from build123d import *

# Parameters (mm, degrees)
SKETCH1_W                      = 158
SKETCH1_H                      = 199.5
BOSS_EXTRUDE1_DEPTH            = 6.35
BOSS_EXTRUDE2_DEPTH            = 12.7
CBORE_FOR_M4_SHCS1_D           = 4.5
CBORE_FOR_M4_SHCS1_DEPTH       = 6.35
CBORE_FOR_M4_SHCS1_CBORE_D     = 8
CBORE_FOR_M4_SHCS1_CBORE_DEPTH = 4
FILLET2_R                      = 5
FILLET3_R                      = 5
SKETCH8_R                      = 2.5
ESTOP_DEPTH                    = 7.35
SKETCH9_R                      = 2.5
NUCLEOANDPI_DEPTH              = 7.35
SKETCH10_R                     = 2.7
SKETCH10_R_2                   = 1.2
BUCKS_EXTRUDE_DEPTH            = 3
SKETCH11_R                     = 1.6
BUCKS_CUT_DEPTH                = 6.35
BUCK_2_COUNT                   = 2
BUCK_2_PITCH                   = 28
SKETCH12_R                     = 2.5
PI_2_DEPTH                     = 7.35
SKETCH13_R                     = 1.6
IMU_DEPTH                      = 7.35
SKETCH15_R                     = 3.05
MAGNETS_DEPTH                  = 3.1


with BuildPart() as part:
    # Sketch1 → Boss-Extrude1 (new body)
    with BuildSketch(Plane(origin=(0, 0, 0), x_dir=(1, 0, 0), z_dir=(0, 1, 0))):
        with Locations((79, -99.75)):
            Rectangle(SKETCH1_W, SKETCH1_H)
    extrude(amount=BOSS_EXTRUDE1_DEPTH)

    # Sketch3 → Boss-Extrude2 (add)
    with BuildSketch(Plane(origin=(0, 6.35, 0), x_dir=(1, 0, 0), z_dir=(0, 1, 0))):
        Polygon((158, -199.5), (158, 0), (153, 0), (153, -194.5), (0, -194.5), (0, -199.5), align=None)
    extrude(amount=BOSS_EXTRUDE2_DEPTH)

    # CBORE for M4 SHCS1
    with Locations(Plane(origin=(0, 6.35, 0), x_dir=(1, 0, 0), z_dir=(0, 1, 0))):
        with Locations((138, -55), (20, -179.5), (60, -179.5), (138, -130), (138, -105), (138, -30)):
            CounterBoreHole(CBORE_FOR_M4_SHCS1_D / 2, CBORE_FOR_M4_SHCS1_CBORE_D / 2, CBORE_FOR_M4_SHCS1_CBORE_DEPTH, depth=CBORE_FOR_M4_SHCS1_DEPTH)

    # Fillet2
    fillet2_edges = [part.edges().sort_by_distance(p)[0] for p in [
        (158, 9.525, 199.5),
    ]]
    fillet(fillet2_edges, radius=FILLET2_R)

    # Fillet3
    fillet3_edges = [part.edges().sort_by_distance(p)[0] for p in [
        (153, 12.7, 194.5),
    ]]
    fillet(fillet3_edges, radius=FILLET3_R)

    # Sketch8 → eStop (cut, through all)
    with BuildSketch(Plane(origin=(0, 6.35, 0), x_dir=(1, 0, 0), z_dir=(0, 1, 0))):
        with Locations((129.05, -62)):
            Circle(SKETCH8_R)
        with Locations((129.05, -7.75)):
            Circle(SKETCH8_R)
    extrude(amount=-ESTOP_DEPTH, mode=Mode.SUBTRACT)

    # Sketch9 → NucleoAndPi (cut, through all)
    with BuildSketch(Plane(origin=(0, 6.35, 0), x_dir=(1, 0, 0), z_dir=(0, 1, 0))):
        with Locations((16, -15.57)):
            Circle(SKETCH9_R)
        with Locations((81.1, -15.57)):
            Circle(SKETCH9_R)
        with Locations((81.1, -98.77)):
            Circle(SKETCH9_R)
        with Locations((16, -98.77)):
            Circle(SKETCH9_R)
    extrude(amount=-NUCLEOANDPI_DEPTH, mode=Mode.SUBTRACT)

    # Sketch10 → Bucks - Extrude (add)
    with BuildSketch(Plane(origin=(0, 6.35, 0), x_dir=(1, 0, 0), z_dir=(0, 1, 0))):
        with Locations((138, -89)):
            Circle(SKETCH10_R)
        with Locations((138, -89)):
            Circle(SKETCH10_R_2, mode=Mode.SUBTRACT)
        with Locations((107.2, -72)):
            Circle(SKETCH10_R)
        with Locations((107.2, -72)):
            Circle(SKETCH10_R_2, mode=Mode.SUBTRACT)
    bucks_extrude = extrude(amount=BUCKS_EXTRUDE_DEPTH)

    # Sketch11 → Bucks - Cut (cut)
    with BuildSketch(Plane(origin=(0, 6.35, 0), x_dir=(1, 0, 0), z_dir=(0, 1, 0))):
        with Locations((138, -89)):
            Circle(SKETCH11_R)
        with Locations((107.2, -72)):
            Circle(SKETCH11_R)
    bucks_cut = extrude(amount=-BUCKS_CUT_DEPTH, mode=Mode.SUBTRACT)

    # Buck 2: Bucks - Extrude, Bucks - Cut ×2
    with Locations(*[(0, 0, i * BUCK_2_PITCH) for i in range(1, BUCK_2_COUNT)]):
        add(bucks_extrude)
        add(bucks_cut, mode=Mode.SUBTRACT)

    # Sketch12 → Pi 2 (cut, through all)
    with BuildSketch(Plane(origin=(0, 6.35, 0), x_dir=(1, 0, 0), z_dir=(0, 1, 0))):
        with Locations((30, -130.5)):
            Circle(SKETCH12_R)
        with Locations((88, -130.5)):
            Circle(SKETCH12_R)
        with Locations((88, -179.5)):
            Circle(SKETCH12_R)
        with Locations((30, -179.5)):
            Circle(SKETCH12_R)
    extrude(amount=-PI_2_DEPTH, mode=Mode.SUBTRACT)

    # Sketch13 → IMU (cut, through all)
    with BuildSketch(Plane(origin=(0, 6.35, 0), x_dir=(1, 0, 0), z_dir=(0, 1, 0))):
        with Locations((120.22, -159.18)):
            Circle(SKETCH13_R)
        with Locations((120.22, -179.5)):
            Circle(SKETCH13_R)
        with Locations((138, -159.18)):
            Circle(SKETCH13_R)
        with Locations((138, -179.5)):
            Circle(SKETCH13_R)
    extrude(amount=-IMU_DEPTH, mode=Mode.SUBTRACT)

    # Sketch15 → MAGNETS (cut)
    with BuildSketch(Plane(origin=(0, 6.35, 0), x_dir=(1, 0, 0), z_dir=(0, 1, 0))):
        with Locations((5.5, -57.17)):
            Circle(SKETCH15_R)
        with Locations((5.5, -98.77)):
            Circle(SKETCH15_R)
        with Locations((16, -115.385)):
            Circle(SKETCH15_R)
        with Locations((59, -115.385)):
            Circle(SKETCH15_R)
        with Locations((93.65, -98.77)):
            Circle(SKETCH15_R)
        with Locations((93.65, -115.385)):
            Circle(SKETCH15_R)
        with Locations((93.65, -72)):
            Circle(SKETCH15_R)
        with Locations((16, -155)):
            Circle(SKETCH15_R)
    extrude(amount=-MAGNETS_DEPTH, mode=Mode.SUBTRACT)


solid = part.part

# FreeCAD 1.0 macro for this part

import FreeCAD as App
import Part
import Sketcher

V = App.Vector


def edges_at(feature, points):
    """Names of the edges that pass closest to the given points."""
    edges = feature.Shape.Edges
    near = lambda p: min(range(len(edges)), key=lambda i: edges[i].distToShape(Part.Vertex(*p))[0])
    return sorted({f"Edge{near(p) + 1}" for p in points})


def add_polygon(sketch, points):
    """Adds a closed chain of lines whose ends are joined by coincident constraints."""
    first, n = sketch.GeometryCount, len(points)
    for a, b in zip(points, points[1:] + points[:1]):
        sketch.addGeometry(Part.LineSegment(App.Vector(*a, 0), App.Vector(*b, 0)), False)
    for i in range(n):
        sketch.addConstraint(Sketcher.Constraint("Coincident", first + i, 2, first + (i + 1) % n, 1))

doc = App.newDocument("Part")
body = doc.addObject("PartDesign::Body", "Body")

# Sketch on XZ plane
sketch1 = doc.addObject("Sketcher::SketchObject", "Sketch")
body.addObject(sketch1)
sketch1.AttachmentSupport = (doc.XZ_Plane, [""])
sketch1.MapMode = "FlatFace"
add_polygon(sketch1, [(0, 0), (0, 199.5), (158, 199.5), (158, 0)])  # lines 0-3
sketch1.addConstraint([
    Sketcher.Constraint("Vertical", 0),
    Sketcher.Constraint("Horizontal", 1),
    Sketcher.Constraint("Vertical", 2),
    Sketcher.Constraint("Horizontal", 3),
    Sketcher.Constraint("Coincident", 3, 2, -1, 1),
    Sketcher.Constraint("DistanceX", 1, 1, 1, 2, 158.0),
    Sketcher.Constraint("DistanceY", 0, 1, 0, 2, 199.5),
])
pad1 = doc.addObject("PartDesign::Pad", "Pad")
body.addObject(pad1)
pad1.Profile = sketch1
pad1.Length = 6.35
pad1.Reversed = True

# Sketch on XZ plane
sketch2 = doc.addObject("Sketcher::SketchObject", "Sketch001")
body.addObject(sketch2)
sketch2.AttachmentSupport = (doc.XZ_Plane, [""])
sketch2.MapMode = "FlatFace"
sketch2.AttachmentOffset = App.Placement(V(0, 0, -6.35), App.Rotation())
add_polygon(sketch2, [(158, 199.5), (158, 0), (153, 0), (153, 194.5), (0, 194.5), (0, 199.5)])  # lines 0-5
sketch2.addConstraint([
    Sketcher.Constraint("Vertical", 0),
    Sketcher.Constraint("Horizontal", 1),
    Sketcher.Constraint("Vertical", 2),
    Sketcher.Constraint("Horizontal", 3),
    Sketcher.Constraint("Vertical", 4),
    Sketcher.Constraint("Horizontal", 5),
    Sketcher.Constraint("PointOnObject", 0, 2, -1),
    Sketcher.Constraint("PointOnObject", 3, 2, -2),
    Sketcher.Constraint("Equal", 1, 4),
    Sketcher.Constraint("DistanceX", 1, 2, 1, 1, 5.0),
    Sketcher.Constraint("DistanceX", 3, 2, 3, 1, 153.0),
    Sketcher.Constraint("DistanceY", 0, 2, 0, 1, 199.5),
])
pad2 = doc.addObject("PartDesign::Pad", "Pad001")
body.addObject(pad2)
pad2.Profile = sketch2
pad2.Length = 12.7
pad2.Reversed = True

# Sketch on XZ plane
sketch3 = doc.addObject("Sketcher::SketchObject", "Sketch002")
body.addObject(sketch3)
sketch3.AttachmentSupport = (doc.XZ_Plane, [""])
sketch3.MapMode = "FlatFace"
sketch3.AttachmentOffset = App.Placement(V(0, 0, -6.35), App.Rotation())
sketch3.addGeometry([
    Part.Circle(V(138, 55, 0), V(0, 0, 1), 2.25),  # 0
    Part.Circle(V(20, 179.5, 0), V(0, 0, 1), 2.25),  # 1
    Part.Circle(V(60, 179.5, 0), V(0, 0, 1), 2.25),  # 2
    Part.Circle(V(138, 130, 0), V(0, 0, 1), 2.25),  # 3
    Part.Circle(V(138, 105, 0), V(0, 0, 1), 2.25),  # 4
    Part.Circle(V(138, 30, 0), V(0, 0, 1), 2.25),  # 5
], False)
sketch3.addConstraint([
    Sketcher.Constraint("Equal", 0, 1),
    Sketcher.Constraint("Equal", 1, 2),
    Sketcher.Constraint("Equal", 2, 3),
    Sketcher.Constraint("Equal", 3, 4),
    Sketcher.Constraint("Equal", 4, 5),
    Sketcher.Constraint("Horizontal", 1, 3, 2, 3),
    Sketcher.Constraint("Vertical", 0, 3, 3, 3),
    Sketcher.Constraint("Vertical", 3, 3, 4, 3),
    Sketcher.Constraint("Vertical", 4, 3, 5, 3),
    Sketcher.Constraint("Diameter", 0, 4.5),
    Sketcher.Constraint("DistanceX", -1, 1, 0, 3, 138.0),
    Sketcher.Constraint("DistanceY", -1, 1, 0, 3, 55.0),
    Sketcher.Constraint("DistanceX", -1, 1, 1, 3, 20.0),
    Sketcher.Constraint("DistanceX", -1, 1, 2, 3, 60.0),
    Sketcher.Constraint("DistanceY", -1, 1, 3, 3, 130.0),
    Sketcher.Constraint("DistanceY", -1, 1, 4, 3, 105.0),
    Sketcher.Constraint("DistanceY", -1, 1, 5, 3, 30.0),
    Sketcher.Constraint("DistanceY", -1, 1, 1, 3, 179.5),
])
doc.recompute()
hole = doc.addObject("PartDesign::Hole", "Hole")
body.addObject(hole)
hole.Profile = sketch3
hole.ThreadType = "None"
hole.Diameter = 4.5
hole.DepthType = "Dimension"
hole.Depth = 6.35
hole.DrillPoint = "Flat"
hole.HoleCutType = "Counterbore"
hole.HoleCutDiameter = 8
hole.HoleCutDepth = 4
hole.Reversed = True
doc.recompute()

fillet = doc.addObject("PartDesign::Fillet", "Fillet")
body.addObject(fillet)
fillet.Base = (hole, edges_at(hole, [(158, 9.525, 199.5)]))
fillet.Radius = 5
doc.recompute()

fillet2 = doc.addObject("PartDesign::Fillet", "Fillet001")
body.addObject(fillet2)
fillet2.Base = (fillet, edges_at(fillet, [(153, 12.7, 194.5)]))
fillet2.Radius = 5

# Sketch on XZ plane
sketch4 = doc.addObject("Sketcher::SketchObject", "Sketch003")
body.addObject(sketch4)
sketch4.AttachmentSupport = (doc.XZ_Plane, [""])
sketch4.MapMode = "FlatFace"
sketch4.AttachmentOffset = App.Placement(V(0, 0, -6.35), App.Rotation())
sketch4.addGeometry([
    Part.Circle(V(129.05, 62, 0), V(0, 0, 1), 2.5),
    Part.Circle(V(129.05, 7.75, 0), V(0, 0, 1), 2.5),
], False)
sketch4.addConstraint([
    Sketcher.Constraint("Equal", 0, 1),
    Sketcher.Constraint("Vertical", 0, 3, 1, 3),
    Sketcher.Constraint("Diameter", 0, 5.0),
    Sketcher.Constraint("DistanceY", -1, 1, 0, 3, 62.0),
    Sketcher.Constraint("DistanceX", -1, 1, 0, 3, 129.05),
    Sketcher.Constraint("DistanceY", -1, 1, 1, 3, 7.75),
])
pocket1 = doc.addObject("PartDesign::Pocket", "Pocket")
body.addObject(pocket1)
pocket1.Profile = sketch4
pocket1.Type = "ThroughAll"
pocket1.Reversed = True

# Sketch on XZ plane
sketch5 = doc.addObject("Sketcher::SketchObject", "Sketch004")
body.addObject(sketch5)
sketch5.AttachmentSupport = (doc.XZ_Plane, [""])
sketch5.MapMode = "FlatFace"
sketch5.AttachmentOffset = App.Placement(V(0, 0, -6.35), App.Rotation())
sketch5.addGeometry([
    Part.Circle(V(16, 15.57, 0), V(0, 0, 1), 2.5),
    Part.Circle(V(81.1, 15.57, 0), V(0, 0, 1), 2.5),
    Part.Circle(V(81.1, 98.77, 0), V(0, 0, 1), 2.5),
    Part.Circle(V(16, 98.77, 0), V(0, 0, 1), 2.5),
], False)
sketch5.addConstraint([
    Sketcher.Constraint("Equal", 0, 1),
    Sketcher.Constraint("Equal", 1, 2),
    Sketcher.Constraint("Equal", 2, 3),
    Sketcher.Constraint("Horizontal", 0, 3, 1, 3),
    Sketcher.Constraint("Horizontal", 2, 3, 3, 3),
    Sketcher.Constraint("Vertical", 1, 3, 2, 3),
    Sketcher.Constraint("Vertical", 0, 3, 3, 3),
    Sketcher.Constraint("Diameter", 0, 5.0),
    Sketcher.Constraint("DistanceX", -1, 1, 0, 3, 16.0),
    Sketcher.Constraint("DistanceX", -1, 1, 1, 3, 81.1),
    Sketcher.Constraint("DistanceY", 1, 3, 2, 3, 83.2),
    Sketcher.Constraint("DistanceY", -1, 1, 0, 3, 15.57),
])
pocket2 = doc.addObject("PartDesign::Pocket", "Pocket001")
body.addObject(pocket2)
pocket2.Profile = sketch5
pocket2.Type = "ThroughAll"
pocket2.Reversed = True

# Sketch on XZ plane
sketch6 = doc.addObject("Sketcher::SketchObject", "Sketch005")
body.addObject(sketch6)
sketch6.AttachmentSupport = (doc.XZ_Plane, [""])
sketch6.MapMode = "FlatFace"
sketch6.AttachmentOffset = App.Placement(V(0, 0, -6.35), App.Rotation())
sketch6.addGeometry([
    Part.Circle(V(138, 89, 0), V(0, 0, 1), 2.7),
    Part.Circle(V(138, 89, 0), V(0, 0, 1), 1.2),
    Part.Circle(V(107.2, 72, 0), V(0, 0, 1), 2.7),
    Part.Circle(V(107.2, 72, 0), V(0, 0, 1), 1.2),
], False)
sketch6.addConstraint([
    Sketcher.Constraint("Coincident", 1, 3, 0, 3),
    Sketcher.Constraint("Coincident", 3, 3, 2, 3),
    Sketcher.Constraint("Equal", 0, 2),
    Sketcher.Constraint("Equal", 1, 3),
    Sketcher.Constraint("Diameter", 0, 5.4),
    Sketcher.Constraint("Diameter", 1, 2.4),
    Sketcher.Constraint("DistanceX", -1, 1, 0, 3, 138.0),
    Sketcher.Constraint("DistanceY", -1, 1, 0, 3, 89.0),
    Sketcher.Constraint("DistanceY", -1, 1, 2, 3, 72.0),
    Sketcher.Constraint("DistanceX", -1, 1, 2, 3, 107.2),
])
pad3 = doc.addObject("PartDesign::Pad", "Pad002")
body.addObject(pad3)
pad3.Profile = sketch6
pad3.Length = 3
pad3.Reversed = True

# Sketch on XZ plane
sketch7 = doc.addObject("Sketcher::SketchObject", "Sketch006")
body.addObject(sketch7)
sketch7.AttachmentSupport = (doc.XZ_Plane, [""])
sketch7.MapMode = "FlatFace"
sketch7.AttachmentOffset = App.Placement(V(0, 0, -6.35), App.Rotation())
sketch7.addGeometry([
    Part.Circle(V(138, 89, 0), V(0, 0, 1), 1.6),
    Part.Circle(V(107.2, 72, 0), V(0, 0, 1), 1.6),
], False)
sketch7.addConstraint([
    Sketcher.Constraint("Equal", 0, 1),
    Sketcher.Constraint("Diameter", 0, 3.2),
    Sketcher.Constraint("DistanceX", -1, 1, 0, 3, 138.0),
    Sketcher.Constraint("DistanceY", -1, 1, 0, 3, 89.0),
    Sketcher.Constraint("DistanceY", -1, 1, 1, 3, 72.0),
    Sketcher.Constraint("DistanceX", -1, 1, 1, 3, 107.2),
])
pocket3 = doc.addObject("PartDesign::Pocket", "Pocket002")
body.addObject(pocket3)
pocket3.Profile = sketch7
pocket3.Length = 6.35
pocket3.Reversed = True
doc.recompute()

linearpattern = doc.addObject("PartDesign::LinearPattern", "LinearPattern")
body.addObject(linearpattern)
linearpattern.Originals = [pad3, pocket3]
linearpattern.Direction = (doc.Z_Axis, [""])
linearpattern.Mode = "offset"
linearpattern.Offset = 28
linearpattern.Occurrences = 2
body.Tip = linearpattern

# Sketch on XZ plane
sketch8 = doc.addObject("Sketcher::SketchObject", "Sketch007")
body.addObject(sketch8)
sketch8.AttachmentSupport = (doc.XZ_Plane, [""])
sketch8.MapMode = "FlatFace"
sketch8.AttachmentOffset = App.Placement(V(0, 0, -6.35), App.Rotation())
sketch8.addGeometry([
    Part.Circle(V(30, 130.5, 0), V(0, 0, 1), 2.5),
    Part.Circle(V(88, 130.5, 0), V(0, 0, 1), 2.5),
    Part.Circle(V(88, 179.5, 0), V(0, 0, 1), 2.5),
    Part.Circle(V(30, 179.5, 0), V(0, 0, 1), 2.5),
], False)
sketch8.addConstraint([
    Sketcher.Constraint("Equal", 0, 1),
    Sketcher.Constraint("Equal", 1, 2),
    Sketcher.Constraint("Equal", 2, 3),
    Sketcher.Constraint("Horizontal", 0, 3, 1, 3),
    Sketcher.Constraint("Horizontal", 2, 3, 3, 3),
    Sketcher.Constraint("Vertical", 1, 3, 2, 3),
    Sketcher.Constraint("Vertical", 0, 3, 3, 3),
    Sketcher.Constraint("Diameter", 0, 5.0),
    Sketcher.Constraint("DistanceX", -1, 1, 0, 3, 30.0),
    Sketcher.Constraint("DistanceX", -1, 1, 1, 3, 88.0),
    Sketcher.Constraint("DistanceY", 1, 3, 2, 3, 49.0),
    Sketcher.Constraint("DistanceY", -1, 1, 0, 3, 130.5),
])
pocket4 = doc.addObject("PartDesign::Pocket", "Pocket003")
body.addObject(pocket4)
pocket4.Profile = sketch8
pocket4.Type = "ThroughAll"
pocket4.Reversed = True

# Sketch on XZ plane
sketch9 = doc.addObject("Sketcher::SketchObject", "Sketch008")
body.addObject(sketch9)
sketch9.AttachmentSupport = (doc.XZ_Plane, [""])
sketch9.MapMode = "FlatFace"
sketch9.AttachmentOffset = App.Placement(V(0, 0, -6.35), App.Rotation())
sketch9.addGeometry([
    Part.Circle(V(120.22, 159.18, 0), V(0, 0, 1), 1.6),
    Part.Circle(V(120.22, 179.5, 0), V(0, 0, 1), 1.6),
    Part.Circle(V(138, 159.18, 0), V(0, 0, 1), 1.6),
    Part.Circle(V(138, 179.5, 0), V(0, 0, 1), 1.6),
], False)
sketch9.addConstraint([
    Sketcher.Constraint("Equal", 0, 1),
    Sketcher.Constraint("Equal", 1, 2),
    Sketcher.Constraint("Equal", 2, 3),
    Sketcher.Constraint("Horizontal", 0, 3, 2, 3),
    Sketcher.Constraint("Horizontal", 1, 3, 3, 3),
    Sketcher.Constraint("Vertical", 0, 3, 1, 3),
    Sketcher.Constraint("Vertical", 2, 3, 3, 3),
    Sketcher.Constraint("Diameter", 0, 3.2),
    Sketcher.Constraint("DistanceX", -1, 1, 2, 3, 138.0),
    Sketcher.Constraint("DistanceY", -1, 1, 1, 3, 179.5),
    Sketcher.Constraint("DistanceX", -1, 1, 0, 3, 120.22),
    Sketcher.Constraint("DistanceY", -1, 1, 0, 3, 159.18),
])
pocket5 = doc.addObject("PartDesign::Pocket", "Pocket004")
body.addObject(pocket5)
pocket5.Profile = sketch9
pocket5.Type = "ThroughAll"
pocket5.Reversed = True

# Sketch on XZ plane
sketch10 = doc.addObject("Sketcher::SketchObject", "Sketch009")
body.addObject(sketch10)
sketch10.AttachmentSupport = (doc.XZ_Plane, [""])
sketch10.MapMode = "FlatFace"
sketch10.AttachmentOffset = App.Placement(V(0, 0, -6.35), App.Rotation())
sketch10.addGeometry([
    Part.Circle(V(5.5, 57.17, 0), V(0, 0, 1), 3.05),  # 0
    Part.Circle(V(5.5, 98.77, 0), V(0, 0, 1), 3.05),  # 1
    Part.Circle(V(16, 115.385, 0), V(0, 0, 1), 3.05),  # 2
    Part.Circle(V(59, 115.385, 0), V(0, 0, 1), 3.05),  # 3
    Part.Circle(V(93.65, 98.77, 0), V(0, 0, 1), 3.05),  # 4
    Part.Circle(V(93.65, 115.385, 0), V(0, 0, 1), 3.05),  # 5
    Part.Circle(V(93.65, 72, 0), V(0, 0, 1), 3.05),  # 6
    Part.Circle(V(16, 155, 0), V(0, 0, 1), 3.05),  # 7
], False)
sketch10.addConstraint([
    Sketcher.Constraint("Equal", 0, 1),
    Sketcher.Constraint("Equal", 1, 2),
    Sketcher.Constraint("Equal", 2, 3),
    Sketcher.Constraint("Equal", 3, 4),
    Sketcher.Constraint("Equal", 4, 5),
    Sketcher.Constraint("Equal", 5, 6),
    Sketcher.Constraint("Equal", 6, 7),
    Sketcher.Constraint("Horizontal", 2, 3, 3, 3),
    Sketcher.Constraint("Horizontal", 1, 3, 4, 3),
    Sketcher.Constraint("Horizontal", 3, 3, 5, 3),
    Sketcher.Constraint("Vertical", 0, 3, 1, 3),
    Sketcher.Constraint("Vertical", 4, 3, 5, 3),
    Sketcher.Constraint("Vertical", 5, 3, 6, 3),
    Sketcher.Constraint("Vertical", 2, 3, 7, 3),
    Sketcher.Constraint("Diameter", 0, 6.1),
    Sketcher.Constraint("DistanceX", -1, 1, 2, 3, 16.0),
    Sketcher.Constraint("DistanceX", -1, 1, 3, 3, 59.0),
    Sketcher.Constraint("DistanceY", -1, 1, 6, 3, 72.0),
    Sketcher.Constraint("DistanceY", -1, 1, 7, 3, 155.0),
    Sketcher.Constraint("DistanceX", -1, 1, 0, 3, 5.5),
    Sketcher.Constraint("DistanceY", 0, 3, 1, 3, 41.6),
    Sketcher.Constraint("DistanceY", -1, 1, 0, 3, 57.17),
    Sketcher.Constraint("DistanceX", -1, 1, 4, 3, 93.65),
    Sketcher.Constraint("DistanceY", -1, 1, 2, 3, 115.385),
])
pocket6 = doc.addObject("PartDesign::Pocket", "Pocket005")
body.addObject(pocket6)
pocket6.Profile = sketch10
pocket6.Length = 3.1
pocket6.Reversed = True

doc.recompute()
